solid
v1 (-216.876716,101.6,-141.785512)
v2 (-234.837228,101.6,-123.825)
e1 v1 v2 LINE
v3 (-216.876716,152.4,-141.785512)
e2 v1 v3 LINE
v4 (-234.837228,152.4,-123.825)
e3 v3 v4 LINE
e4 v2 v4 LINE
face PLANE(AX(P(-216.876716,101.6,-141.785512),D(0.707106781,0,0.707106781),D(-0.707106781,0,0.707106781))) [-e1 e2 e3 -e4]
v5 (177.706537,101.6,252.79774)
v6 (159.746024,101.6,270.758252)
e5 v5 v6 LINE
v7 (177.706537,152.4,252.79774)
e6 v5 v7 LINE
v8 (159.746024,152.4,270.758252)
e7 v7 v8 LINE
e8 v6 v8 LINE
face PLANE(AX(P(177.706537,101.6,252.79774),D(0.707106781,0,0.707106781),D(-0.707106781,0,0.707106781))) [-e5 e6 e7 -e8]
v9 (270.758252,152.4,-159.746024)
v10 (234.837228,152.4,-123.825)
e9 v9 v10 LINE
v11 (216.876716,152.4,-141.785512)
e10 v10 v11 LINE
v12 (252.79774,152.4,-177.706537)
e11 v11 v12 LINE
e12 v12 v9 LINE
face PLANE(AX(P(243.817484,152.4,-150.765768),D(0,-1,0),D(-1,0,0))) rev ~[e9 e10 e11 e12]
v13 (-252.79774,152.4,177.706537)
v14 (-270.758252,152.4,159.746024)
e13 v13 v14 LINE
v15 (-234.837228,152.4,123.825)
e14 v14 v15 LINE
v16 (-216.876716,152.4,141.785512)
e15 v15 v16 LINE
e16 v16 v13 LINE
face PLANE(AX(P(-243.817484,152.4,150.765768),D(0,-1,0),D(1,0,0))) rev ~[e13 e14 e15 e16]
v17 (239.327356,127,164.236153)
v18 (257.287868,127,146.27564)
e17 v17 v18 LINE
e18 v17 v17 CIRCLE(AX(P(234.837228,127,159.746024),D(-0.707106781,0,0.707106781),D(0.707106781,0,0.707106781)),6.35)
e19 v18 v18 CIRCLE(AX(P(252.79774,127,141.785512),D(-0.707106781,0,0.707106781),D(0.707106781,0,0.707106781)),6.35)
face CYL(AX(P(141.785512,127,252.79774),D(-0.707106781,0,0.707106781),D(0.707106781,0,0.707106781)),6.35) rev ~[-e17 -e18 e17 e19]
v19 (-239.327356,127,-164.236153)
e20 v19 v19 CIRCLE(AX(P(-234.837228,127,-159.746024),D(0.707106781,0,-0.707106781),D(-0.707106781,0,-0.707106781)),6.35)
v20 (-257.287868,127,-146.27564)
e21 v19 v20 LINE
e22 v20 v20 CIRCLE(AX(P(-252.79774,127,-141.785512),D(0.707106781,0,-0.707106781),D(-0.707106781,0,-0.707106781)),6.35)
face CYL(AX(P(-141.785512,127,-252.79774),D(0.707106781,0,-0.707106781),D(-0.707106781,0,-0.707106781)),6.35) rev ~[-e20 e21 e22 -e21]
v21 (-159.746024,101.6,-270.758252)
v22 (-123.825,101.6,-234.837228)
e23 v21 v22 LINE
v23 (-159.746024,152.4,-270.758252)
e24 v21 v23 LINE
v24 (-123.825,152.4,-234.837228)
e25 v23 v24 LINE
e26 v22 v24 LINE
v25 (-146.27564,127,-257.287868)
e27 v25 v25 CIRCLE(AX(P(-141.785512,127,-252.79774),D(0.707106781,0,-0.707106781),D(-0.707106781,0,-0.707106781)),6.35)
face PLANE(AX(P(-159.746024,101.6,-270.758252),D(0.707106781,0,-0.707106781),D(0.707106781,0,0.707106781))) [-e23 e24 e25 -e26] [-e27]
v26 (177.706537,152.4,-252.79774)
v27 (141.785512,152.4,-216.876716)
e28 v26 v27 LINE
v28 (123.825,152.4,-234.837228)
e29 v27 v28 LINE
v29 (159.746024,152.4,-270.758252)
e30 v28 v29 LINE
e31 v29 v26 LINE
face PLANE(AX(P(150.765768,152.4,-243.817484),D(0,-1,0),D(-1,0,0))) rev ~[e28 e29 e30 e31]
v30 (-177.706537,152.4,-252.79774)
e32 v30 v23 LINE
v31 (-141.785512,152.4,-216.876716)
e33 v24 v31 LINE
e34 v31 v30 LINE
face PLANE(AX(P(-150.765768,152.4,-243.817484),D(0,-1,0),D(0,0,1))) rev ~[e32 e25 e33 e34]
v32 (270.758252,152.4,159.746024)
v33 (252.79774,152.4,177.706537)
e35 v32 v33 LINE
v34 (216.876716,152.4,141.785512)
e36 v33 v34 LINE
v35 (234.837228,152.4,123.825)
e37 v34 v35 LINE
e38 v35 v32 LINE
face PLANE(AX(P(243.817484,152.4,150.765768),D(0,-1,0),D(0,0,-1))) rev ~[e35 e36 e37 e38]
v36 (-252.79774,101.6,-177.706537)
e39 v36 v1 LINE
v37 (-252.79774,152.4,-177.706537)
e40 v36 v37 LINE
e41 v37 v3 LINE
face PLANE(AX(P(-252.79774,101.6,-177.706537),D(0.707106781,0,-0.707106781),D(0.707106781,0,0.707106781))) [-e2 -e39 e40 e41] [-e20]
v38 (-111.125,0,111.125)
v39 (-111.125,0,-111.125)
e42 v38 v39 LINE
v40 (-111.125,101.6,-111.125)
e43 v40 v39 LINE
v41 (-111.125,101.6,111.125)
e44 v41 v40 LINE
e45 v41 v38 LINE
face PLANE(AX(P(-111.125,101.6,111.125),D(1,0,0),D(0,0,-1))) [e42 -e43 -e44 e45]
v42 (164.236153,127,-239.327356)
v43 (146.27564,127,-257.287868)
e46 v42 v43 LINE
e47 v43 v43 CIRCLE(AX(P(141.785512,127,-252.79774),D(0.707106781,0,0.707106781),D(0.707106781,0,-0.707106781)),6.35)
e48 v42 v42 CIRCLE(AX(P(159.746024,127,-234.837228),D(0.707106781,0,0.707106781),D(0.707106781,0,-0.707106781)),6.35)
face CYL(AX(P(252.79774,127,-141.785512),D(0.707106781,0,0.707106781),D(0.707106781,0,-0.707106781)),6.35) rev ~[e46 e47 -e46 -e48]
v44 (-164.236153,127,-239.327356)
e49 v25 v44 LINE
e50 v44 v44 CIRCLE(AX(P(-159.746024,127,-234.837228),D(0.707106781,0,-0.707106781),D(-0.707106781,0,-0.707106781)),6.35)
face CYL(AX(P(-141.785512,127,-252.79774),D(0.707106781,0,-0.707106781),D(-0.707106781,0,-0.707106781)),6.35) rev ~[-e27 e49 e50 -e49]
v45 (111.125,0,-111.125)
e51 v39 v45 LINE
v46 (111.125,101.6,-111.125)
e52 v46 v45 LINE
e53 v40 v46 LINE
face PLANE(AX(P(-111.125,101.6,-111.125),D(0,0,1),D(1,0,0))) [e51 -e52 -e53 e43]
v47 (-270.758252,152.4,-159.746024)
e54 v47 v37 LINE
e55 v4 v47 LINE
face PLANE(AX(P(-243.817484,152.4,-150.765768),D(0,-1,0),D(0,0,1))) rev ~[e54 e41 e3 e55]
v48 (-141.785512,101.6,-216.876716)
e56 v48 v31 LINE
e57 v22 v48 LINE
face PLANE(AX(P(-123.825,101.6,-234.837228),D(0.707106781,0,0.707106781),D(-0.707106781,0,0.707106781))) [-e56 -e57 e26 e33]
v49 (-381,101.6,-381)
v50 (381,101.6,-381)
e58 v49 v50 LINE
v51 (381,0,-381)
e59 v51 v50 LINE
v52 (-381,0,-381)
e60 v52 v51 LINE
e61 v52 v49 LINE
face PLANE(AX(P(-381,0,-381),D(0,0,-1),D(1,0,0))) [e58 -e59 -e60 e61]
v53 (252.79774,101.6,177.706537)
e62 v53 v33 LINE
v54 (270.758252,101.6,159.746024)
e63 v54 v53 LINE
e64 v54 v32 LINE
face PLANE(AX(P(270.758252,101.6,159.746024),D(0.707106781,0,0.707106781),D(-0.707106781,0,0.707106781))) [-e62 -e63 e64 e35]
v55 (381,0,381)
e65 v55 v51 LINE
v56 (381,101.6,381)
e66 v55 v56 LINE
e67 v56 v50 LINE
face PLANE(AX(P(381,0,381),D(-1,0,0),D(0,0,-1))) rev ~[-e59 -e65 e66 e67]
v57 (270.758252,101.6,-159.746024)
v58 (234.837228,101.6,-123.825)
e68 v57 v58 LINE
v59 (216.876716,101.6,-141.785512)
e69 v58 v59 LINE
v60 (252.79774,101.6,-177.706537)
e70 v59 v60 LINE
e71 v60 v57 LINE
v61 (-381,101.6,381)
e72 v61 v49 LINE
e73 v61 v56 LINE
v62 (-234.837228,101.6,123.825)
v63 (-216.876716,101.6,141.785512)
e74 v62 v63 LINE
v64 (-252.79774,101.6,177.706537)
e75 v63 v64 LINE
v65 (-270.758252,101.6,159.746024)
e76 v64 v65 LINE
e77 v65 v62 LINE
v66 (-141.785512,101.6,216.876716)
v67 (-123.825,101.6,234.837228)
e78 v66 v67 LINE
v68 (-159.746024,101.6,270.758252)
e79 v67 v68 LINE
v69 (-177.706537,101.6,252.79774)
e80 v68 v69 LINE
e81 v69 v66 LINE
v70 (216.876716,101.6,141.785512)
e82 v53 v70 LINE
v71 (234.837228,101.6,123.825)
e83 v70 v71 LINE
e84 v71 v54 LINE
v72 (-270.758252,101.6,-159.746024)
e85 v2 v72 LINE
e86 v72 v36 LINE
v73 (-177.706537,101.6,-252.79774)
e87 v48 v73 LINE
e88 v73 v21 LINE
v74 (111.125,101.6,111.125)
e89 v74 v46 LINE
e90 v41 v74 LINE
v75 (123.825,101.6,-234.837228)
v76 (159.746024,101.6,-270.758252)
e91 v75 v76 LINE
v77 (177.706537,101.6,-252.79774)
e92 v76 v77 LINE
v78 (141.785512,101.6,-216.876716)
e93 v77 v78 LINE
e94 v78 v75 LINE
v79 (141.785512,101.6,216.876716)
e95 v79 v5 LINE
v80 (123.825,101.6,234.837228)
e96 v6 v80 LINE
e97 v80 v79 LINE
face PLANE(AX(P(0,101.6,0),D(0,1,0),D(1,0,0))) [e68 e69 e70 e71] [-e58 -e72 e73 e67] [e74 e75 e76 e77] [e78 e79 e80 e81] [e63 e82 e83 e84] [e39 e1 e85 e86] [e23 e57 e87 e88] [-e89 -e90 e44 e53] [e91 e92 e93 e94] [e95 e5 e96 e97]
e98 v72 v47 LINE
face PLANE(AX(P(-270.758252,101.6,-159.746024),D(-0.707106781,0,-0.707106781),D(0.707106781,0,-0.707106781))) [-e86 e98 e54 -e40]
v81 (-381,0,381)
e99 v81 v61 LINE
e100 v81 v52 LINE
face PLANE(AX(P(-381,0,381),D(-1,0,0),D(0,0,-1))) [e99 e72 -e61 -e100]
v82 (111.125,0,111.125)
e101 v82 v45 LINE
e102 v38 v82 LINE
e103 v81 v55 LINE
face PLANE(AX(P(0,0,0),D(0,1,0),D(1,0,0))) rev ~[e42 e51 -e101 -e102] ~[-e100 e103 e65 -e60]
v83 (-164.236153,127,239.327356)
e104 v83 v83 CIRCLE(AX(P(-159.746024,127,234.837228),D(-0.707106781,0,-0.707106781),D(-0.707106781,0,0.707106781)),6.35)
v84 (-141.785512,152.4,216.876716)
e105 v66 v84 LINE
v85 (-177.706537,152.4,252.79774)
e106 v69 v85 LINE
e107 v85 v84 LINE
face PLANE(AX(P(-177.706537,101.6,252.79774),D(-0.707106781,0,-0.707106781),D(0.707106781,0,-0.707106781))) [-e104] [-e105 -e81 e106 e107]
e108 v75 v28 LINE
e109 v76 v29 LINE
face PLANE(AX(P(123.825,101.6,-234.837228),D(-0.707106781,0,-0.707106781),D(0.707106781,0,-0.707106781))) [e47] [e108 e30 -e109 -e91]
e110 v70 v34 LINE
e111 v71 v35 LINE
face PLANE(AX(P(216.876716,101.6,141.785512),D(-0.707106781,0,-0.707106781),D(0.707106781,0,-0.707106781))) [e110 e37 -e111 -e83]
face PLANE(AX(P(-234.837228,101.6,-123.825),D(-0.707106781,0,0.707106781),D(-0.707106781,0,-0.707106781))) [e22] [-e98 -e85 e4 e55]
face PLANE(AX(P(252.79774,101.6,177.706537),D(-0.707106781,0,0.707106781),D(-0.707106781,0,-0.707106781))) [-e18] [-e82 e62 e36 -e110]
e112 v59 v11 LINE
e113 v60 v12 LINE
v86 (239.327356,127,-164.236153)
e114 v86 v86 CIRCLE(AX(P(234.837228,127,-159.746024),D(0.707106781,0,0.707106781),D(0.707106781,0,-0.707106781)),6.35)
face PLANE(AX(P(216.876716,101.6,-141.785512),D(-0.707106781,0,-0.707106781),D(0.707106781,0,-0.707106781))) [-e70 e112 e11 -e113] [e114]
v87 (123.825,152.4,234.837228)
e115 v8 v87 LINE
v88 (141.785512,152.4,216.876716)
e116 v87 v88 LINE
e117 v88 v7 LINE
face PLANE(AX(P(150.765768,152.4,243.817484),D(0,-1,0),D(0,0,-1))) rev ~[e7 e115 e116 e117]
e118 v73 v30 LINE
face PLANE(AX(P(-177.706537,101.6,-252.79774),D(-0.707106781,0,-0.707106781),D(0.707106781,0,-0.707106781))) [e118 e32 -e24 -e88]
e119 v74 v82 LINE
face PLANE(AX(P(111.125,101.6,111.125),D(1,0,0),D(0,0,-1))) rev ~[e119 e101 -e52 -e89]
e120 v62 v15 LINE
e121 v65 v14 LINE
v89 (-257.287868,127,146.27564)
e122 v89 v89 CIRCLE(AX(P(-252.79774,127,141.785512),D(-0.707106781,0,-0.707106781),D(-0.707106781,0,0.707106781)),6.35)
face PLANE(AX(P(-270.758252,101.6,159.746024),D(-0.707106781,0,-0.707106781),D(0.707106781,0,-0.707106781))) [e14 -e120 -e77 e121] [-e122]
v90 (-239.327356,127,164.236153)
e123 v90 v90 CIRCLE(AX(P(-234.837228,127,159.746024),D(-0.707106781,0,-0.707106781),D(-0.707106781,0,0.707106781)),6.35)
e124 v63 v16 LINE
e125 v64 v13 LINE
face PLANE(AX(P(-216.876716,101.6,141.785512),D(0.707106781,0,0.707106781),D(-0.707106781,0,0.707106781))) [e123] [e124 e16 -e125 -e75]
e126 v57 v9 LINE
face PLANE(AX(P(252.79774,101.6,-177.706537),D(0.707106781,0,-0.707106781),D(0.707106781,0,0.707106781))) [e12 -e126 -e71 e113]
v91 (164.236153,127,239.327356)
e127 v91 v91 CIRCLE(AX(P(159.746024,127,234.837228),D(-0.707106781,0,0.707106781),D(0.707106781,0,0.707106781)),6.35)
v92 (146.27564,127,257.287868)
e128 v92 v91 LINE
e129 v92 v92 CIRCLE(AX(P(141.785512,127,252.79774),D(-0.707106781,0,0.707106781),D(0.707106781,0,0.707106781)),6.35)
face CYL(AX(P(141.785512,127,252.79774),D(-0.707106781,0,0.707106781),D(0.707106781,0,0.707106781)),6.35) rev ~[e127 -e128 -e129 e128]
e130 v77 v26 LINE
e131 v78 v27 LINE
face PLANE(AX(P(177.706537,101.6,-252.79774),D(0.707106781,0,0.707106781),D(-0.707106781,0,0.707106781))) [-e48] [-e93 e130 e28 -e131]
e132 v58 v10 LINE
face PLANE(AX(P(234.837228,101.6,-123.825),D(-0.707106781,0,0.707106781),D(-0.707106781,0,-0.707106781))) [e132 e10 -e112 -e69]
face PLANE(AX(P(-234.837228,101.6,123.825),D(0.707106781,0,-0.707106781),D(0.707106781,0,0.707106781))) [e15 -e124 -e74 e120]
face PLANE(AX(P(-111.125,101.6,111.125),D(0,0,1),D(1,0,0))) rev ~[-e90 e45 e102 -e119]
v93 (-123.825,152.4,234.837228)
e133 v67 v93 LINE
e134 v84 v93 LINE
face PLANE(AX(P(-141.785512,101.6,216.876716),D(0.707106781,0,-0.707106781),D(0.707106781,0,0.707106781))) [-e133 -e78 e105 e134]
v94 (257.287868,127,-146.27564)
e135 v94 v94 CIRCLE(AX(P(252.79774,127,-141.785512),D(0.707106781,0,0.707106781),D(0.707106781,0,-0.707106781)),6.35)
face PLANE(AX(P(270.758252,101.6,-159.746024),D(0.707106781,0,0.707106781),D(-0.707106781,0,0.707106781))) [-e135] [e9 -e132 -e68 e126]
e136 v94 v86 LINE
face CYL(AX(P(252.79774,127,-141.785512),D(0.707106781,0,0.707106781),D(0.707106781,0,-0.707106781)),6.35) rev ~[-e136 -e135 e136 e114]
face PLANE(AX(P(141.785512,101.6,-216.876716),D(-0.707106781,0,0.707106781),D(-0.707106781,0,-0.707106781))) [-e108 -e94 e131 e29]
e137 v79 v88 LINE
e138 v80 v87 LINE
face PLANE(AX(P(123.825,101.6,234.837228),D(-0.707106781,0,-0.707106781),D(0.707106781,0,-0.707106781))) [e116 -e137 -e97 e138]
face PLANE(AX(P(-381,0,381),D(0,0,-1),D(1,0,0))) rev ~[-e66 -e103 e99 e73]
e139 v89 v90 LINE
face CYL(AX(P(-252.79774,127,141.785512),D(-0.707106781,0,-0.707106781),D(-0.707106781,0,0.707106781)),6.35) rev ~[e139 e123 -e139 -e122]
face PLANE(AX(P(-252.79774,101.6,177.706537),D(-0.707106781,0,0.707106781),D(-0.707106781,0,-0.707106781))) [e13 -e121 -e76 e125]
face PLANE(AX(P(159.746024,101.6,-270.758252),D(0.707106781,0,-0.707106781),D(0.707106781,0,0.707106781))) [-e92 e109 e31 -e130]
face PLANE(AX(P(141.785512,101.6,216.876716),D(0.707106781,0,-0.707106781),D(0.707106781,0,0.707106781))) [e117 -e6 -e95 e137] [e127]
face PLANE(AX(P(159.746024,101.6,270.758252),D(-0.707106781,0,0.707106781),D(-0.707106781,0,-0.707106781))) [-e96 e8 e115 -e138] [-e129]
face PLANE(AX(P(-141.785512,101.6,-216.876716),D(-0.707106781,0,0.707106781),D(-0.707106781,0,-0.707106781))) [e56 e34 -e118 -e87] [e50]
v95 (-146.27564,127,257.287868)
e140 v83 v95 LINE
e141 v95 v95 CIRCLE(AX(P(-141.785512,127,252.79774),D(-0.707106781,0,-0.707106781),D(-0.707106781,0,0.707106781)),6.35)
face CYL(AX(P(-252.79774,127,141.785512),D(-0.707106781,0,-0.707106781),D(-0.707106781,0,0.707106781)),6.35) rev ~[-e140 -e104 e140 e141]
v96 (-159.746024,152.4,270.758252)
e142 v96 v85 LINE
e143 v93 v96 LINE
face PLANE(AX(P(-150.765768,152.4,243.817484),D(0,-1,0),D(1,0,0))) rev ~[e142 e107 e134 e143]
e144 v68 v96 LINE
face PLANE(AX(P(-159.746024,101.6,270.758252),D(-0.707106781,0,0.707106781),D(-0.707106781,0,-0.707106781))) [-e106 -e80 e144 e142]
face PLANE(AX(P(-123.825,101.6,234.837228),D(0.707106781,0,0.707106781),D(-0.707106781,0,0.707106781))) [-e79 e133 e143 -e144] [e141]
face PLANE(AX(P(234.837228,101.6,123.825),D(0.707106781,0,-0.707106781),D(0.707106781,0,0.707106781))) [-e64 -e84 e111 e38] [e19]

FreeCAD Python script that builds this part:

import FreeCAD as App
import Part
import Sketcher

V = App.Vector
Q = App.Units.Quantity

doc = App.newDocument("Part")
body = doc.addObject("PartDesign::Body", "Body")

# Sketch on XZ plane
sketch1 = body.newObject("Sketcher::SketchObject", "Sketch")
sketch1.AttachmentSupport = (doc.getObject("XZ_Plane"), [""])
sketch1.MapMode = "FlatFace"
sketch1.addGeometry([
    Part.LineSegment(V(-381, -381, 0), V(-381, 381, 0)),
    Part.LineSegment(V(-381, 381, 0), V(381, 381, 0)),
    Part.LineSegment(V(381, 381, 0), V(381, -381, 0)),
    Part.LineSegment(V(381, -381, 0), V(-381, -381, 0)),
], False)
sketch1.addConstraint([
    Sketcher.Constraint("Coincident", 0, 2, 1, 1),
    Sketcher.Constraint("Coincident", 1, 2, 2, 1),
    Sketcher.Constraint("Coincident", 2, 2, 3, 1),
    Sketcher.Constraint("Coincident", 3, 2, 0, 1),
    Sketcher.Constraint("Vertical", 0),
    Sketcher.Constraint("Horizontal", 1),
    Sketcher.Constraint("Vertical", 2),
    Sketcher.Constraint("Horizontal", 3),
    Sketcher.Constraint("Symmetric", 0, 2, 2, 2, -1, 1),
    Sketcher.Constraint("Equal", 3, 0),
    Sketcher.Constraint("DistanceX", 1, 1, 1, 2, Q("30 in")),
])
pad1 = body.newObject("PartDesign::Pad", "Pad")
pad1.Profile = sketch1
pad1.Length = Q("4 in")
pad1.Reversed = True

# Sketch on XZ plane
sketch2 = body.newObject("Sketcher::SketchObject", "Sketch001")
sketch2.AttachmentSupport = (doc.getObject("XZ_Plane"), [""])
sketch2.MapMode = "FlatFace"
sketch2.AttachmentOffset = App.Placement(V(0, 0, -4 * 25.4), App.Rotation())
sketch2.addGeometry([
    Part.LineSegment(V(-111, -111, 0), V(-111, 111, 0)),
    Part.LineSegment(V(-111, 111, 0), V(111, 111, 0)),
    Part.LineSegment(V(111, 111, 0), V(111, -111, 0)),
    Part.LineSegment(V(111, -111, 0), V(-111, -111, 0)),
], False)
sketch2.addConstraint([
    Sketcher.Constraint("Coincident", 0, 2, 1, 1),
    Sketcher.Constraint("Coincident", 1, 2, 2, 1),
    Sketcher.Constraint("Coincident", 2, 2, 3, 1),
    Sketcher.Constraint("Coincident", 3, 2, 0, 1),
    Sketcher.Constraint("Vertical", 0),
    Sketcher.Constraint("Horizontal", 1),
    Sketcher.Constraint("Vertical", 2),
    Sketcher.Constraint("Horizontal", 3),
    Sketcher.Constraint("Symmetric", 0, 2, 2, 2, -1, 1),
    Sketcher.Constraint("Equal", 3, 0),
    Sketcher.Constraint("DistanceX", 1, 1, 1, 2, Q("8.75 in")),
])
pocket1 = body.newObject("PartDesign::Pocket", "Pocket")
pocket1.Profile = sketch2
pocket1.Type = "ThroughAll"
pocket1.Reversed = True

# Sketch on XZ plane
sketch3 = body.newObject("Sketcher::SketchObject", "Sketch002")
sketch3.AttachmentSupport = (doc.getObject("XZ_Plane"), [""])
sketch3.MapMode = "FlatFace"
sketch3.AttachmentOffset = App.Placement(V(0, 0, -4 * 25.4), App.Rotation())
sketch3.addGeometry([
    Part.LineSegment(V(124, -235, 0), V(142, -217, 0)),  # 0
    Part.LineSegment(V(142, -217, 0), V(178, -253, 0)),  # 1
    Part.LineSegment(V(178, -253, 0), V(160, -271, 0)),  # 2
    Part.LineSegment(V(160, -271, 0), V(124, -235, 0)),  # 3
    Part.LineSegment(V(253, -178, 0), V(217, -142, 0)),  # 4
    Part.LineSegment(V(217, -142, 0), V(235, -124, 0)),  # 5
    Part.LineSegment(V(235, -124, 0), V(271, -160, 0)),  # 6
    Part.LineSegment(V(271, -160, 0), V(253, -178, 0)),  # 7
], False)
sketch3.addConstraint([
    Sketcher.Constraint("Coincident", 0, 2, 1, 1),
    Sketcher.Constraint("Coincident", 1, 2, 2, 1),
    Sketcher.Constraint("Coincident", 2, 2, 3, 1),
    Sketcher.Constraint("Coincident", 3, 2, 0, 1),
    Sketcher.Constraint("Coincident", 4, 2, 5, 1),
    Sketcher.Constraint("Coincident", 5, 2, 6, 1),
    Sketcher.Constraint("Coincident", 6, 2, 7, 1),
    Sketcher.Constraint("Coincident", 7, 2, 4, 1),
    Sketcher.Constraint("Perpendicular", 0, 1),
    Sketcher.Constraint("Perpendicular", 1, 2),
    Sketcher.Constraint("Perpendicular", 2, 3),
    Sketcher.Constraint("Parallel", 3, 4),
    Sketcher.Constraint("Perpendicular", 4, 5),
    Sketcher.Constraint("Perpendicular", 5, 6),
    Sketcher.Constraint("Perpendicular", 6, 7),
    Sketcher.Constraint("Equal", 3, 4),
    Sketcher.Constraint("Equal", 2, 5),
    Sketcher.Constraint("Distance", 0, Q("1 in")),
    Sketcher.Constraint("Distance", 1, Q("2 in")),
    Sketcher.Constraint("Angle", 0, Q("45 deg")),
    Sketcher.Constraint("DistanceX", -1, 1, 3, 2, Q("4.875 in")),
    Sketcher.Constraint("DistanceY", 5, 2, -1, 1, Q("4.875 in")),
    Sketcher.Constraint("DistanceY", 1, 2, -1, 1, 252.79774),
    Sketcher.Constraint("DistanceX", -1, 1, 5, 2, 234.837228),
])
pad2 = body.newObject("PartDesign::Pad", "Pad001")
pad2.Profile = sketch3
pad2.Length = Q("2 in")
pad2.Reversed = True

# Sketch on an angled plane
sketch4 = body.newObject("Sketcher::SketchObject", "Sketch003")
sketch4.Placement = App.Placement(V(55.506114, 0, 55.506114), App.Rotation(V(0.707106781, 0, -0.707106781), V(0, 0.999999999, 0), V(0.707106781, 0, 0.707106781), "ZXY"))
sketch4.addGeometry(Part.Circle(V(279, 127, 0), V(0, 0, 1), 6), False)
sketch4.addConstraint([
    Sketcher.Constraint("Diameter", 0, Q("0.5 in")),
    Sketcher.Constraint("DistanceY", -1, 1, 0, 3, Q("5 in")),
    Sketcher.Constraint("DistanceX", -1, 1, 0, 3, 279.012493),
])
pocket2 = body.newObject("PartDesign::Pocket", "Pocket001")
pocket2.Profile = sketch4
pocket2.Type = "ThroughAll"
doc.recompute()

polarpattern = body.newObject("PartDesign::PolarPattern", "PolarPattern")
polarpattern.Originals = [pad2, pocket2]
polarpattern.Axis = (doc.getObject("Y_Axis"), [""])
polarpattern.Angle = 360
polarpattern.Occurrences = 4
body.Tip = polarpattern

doc.recompute()
